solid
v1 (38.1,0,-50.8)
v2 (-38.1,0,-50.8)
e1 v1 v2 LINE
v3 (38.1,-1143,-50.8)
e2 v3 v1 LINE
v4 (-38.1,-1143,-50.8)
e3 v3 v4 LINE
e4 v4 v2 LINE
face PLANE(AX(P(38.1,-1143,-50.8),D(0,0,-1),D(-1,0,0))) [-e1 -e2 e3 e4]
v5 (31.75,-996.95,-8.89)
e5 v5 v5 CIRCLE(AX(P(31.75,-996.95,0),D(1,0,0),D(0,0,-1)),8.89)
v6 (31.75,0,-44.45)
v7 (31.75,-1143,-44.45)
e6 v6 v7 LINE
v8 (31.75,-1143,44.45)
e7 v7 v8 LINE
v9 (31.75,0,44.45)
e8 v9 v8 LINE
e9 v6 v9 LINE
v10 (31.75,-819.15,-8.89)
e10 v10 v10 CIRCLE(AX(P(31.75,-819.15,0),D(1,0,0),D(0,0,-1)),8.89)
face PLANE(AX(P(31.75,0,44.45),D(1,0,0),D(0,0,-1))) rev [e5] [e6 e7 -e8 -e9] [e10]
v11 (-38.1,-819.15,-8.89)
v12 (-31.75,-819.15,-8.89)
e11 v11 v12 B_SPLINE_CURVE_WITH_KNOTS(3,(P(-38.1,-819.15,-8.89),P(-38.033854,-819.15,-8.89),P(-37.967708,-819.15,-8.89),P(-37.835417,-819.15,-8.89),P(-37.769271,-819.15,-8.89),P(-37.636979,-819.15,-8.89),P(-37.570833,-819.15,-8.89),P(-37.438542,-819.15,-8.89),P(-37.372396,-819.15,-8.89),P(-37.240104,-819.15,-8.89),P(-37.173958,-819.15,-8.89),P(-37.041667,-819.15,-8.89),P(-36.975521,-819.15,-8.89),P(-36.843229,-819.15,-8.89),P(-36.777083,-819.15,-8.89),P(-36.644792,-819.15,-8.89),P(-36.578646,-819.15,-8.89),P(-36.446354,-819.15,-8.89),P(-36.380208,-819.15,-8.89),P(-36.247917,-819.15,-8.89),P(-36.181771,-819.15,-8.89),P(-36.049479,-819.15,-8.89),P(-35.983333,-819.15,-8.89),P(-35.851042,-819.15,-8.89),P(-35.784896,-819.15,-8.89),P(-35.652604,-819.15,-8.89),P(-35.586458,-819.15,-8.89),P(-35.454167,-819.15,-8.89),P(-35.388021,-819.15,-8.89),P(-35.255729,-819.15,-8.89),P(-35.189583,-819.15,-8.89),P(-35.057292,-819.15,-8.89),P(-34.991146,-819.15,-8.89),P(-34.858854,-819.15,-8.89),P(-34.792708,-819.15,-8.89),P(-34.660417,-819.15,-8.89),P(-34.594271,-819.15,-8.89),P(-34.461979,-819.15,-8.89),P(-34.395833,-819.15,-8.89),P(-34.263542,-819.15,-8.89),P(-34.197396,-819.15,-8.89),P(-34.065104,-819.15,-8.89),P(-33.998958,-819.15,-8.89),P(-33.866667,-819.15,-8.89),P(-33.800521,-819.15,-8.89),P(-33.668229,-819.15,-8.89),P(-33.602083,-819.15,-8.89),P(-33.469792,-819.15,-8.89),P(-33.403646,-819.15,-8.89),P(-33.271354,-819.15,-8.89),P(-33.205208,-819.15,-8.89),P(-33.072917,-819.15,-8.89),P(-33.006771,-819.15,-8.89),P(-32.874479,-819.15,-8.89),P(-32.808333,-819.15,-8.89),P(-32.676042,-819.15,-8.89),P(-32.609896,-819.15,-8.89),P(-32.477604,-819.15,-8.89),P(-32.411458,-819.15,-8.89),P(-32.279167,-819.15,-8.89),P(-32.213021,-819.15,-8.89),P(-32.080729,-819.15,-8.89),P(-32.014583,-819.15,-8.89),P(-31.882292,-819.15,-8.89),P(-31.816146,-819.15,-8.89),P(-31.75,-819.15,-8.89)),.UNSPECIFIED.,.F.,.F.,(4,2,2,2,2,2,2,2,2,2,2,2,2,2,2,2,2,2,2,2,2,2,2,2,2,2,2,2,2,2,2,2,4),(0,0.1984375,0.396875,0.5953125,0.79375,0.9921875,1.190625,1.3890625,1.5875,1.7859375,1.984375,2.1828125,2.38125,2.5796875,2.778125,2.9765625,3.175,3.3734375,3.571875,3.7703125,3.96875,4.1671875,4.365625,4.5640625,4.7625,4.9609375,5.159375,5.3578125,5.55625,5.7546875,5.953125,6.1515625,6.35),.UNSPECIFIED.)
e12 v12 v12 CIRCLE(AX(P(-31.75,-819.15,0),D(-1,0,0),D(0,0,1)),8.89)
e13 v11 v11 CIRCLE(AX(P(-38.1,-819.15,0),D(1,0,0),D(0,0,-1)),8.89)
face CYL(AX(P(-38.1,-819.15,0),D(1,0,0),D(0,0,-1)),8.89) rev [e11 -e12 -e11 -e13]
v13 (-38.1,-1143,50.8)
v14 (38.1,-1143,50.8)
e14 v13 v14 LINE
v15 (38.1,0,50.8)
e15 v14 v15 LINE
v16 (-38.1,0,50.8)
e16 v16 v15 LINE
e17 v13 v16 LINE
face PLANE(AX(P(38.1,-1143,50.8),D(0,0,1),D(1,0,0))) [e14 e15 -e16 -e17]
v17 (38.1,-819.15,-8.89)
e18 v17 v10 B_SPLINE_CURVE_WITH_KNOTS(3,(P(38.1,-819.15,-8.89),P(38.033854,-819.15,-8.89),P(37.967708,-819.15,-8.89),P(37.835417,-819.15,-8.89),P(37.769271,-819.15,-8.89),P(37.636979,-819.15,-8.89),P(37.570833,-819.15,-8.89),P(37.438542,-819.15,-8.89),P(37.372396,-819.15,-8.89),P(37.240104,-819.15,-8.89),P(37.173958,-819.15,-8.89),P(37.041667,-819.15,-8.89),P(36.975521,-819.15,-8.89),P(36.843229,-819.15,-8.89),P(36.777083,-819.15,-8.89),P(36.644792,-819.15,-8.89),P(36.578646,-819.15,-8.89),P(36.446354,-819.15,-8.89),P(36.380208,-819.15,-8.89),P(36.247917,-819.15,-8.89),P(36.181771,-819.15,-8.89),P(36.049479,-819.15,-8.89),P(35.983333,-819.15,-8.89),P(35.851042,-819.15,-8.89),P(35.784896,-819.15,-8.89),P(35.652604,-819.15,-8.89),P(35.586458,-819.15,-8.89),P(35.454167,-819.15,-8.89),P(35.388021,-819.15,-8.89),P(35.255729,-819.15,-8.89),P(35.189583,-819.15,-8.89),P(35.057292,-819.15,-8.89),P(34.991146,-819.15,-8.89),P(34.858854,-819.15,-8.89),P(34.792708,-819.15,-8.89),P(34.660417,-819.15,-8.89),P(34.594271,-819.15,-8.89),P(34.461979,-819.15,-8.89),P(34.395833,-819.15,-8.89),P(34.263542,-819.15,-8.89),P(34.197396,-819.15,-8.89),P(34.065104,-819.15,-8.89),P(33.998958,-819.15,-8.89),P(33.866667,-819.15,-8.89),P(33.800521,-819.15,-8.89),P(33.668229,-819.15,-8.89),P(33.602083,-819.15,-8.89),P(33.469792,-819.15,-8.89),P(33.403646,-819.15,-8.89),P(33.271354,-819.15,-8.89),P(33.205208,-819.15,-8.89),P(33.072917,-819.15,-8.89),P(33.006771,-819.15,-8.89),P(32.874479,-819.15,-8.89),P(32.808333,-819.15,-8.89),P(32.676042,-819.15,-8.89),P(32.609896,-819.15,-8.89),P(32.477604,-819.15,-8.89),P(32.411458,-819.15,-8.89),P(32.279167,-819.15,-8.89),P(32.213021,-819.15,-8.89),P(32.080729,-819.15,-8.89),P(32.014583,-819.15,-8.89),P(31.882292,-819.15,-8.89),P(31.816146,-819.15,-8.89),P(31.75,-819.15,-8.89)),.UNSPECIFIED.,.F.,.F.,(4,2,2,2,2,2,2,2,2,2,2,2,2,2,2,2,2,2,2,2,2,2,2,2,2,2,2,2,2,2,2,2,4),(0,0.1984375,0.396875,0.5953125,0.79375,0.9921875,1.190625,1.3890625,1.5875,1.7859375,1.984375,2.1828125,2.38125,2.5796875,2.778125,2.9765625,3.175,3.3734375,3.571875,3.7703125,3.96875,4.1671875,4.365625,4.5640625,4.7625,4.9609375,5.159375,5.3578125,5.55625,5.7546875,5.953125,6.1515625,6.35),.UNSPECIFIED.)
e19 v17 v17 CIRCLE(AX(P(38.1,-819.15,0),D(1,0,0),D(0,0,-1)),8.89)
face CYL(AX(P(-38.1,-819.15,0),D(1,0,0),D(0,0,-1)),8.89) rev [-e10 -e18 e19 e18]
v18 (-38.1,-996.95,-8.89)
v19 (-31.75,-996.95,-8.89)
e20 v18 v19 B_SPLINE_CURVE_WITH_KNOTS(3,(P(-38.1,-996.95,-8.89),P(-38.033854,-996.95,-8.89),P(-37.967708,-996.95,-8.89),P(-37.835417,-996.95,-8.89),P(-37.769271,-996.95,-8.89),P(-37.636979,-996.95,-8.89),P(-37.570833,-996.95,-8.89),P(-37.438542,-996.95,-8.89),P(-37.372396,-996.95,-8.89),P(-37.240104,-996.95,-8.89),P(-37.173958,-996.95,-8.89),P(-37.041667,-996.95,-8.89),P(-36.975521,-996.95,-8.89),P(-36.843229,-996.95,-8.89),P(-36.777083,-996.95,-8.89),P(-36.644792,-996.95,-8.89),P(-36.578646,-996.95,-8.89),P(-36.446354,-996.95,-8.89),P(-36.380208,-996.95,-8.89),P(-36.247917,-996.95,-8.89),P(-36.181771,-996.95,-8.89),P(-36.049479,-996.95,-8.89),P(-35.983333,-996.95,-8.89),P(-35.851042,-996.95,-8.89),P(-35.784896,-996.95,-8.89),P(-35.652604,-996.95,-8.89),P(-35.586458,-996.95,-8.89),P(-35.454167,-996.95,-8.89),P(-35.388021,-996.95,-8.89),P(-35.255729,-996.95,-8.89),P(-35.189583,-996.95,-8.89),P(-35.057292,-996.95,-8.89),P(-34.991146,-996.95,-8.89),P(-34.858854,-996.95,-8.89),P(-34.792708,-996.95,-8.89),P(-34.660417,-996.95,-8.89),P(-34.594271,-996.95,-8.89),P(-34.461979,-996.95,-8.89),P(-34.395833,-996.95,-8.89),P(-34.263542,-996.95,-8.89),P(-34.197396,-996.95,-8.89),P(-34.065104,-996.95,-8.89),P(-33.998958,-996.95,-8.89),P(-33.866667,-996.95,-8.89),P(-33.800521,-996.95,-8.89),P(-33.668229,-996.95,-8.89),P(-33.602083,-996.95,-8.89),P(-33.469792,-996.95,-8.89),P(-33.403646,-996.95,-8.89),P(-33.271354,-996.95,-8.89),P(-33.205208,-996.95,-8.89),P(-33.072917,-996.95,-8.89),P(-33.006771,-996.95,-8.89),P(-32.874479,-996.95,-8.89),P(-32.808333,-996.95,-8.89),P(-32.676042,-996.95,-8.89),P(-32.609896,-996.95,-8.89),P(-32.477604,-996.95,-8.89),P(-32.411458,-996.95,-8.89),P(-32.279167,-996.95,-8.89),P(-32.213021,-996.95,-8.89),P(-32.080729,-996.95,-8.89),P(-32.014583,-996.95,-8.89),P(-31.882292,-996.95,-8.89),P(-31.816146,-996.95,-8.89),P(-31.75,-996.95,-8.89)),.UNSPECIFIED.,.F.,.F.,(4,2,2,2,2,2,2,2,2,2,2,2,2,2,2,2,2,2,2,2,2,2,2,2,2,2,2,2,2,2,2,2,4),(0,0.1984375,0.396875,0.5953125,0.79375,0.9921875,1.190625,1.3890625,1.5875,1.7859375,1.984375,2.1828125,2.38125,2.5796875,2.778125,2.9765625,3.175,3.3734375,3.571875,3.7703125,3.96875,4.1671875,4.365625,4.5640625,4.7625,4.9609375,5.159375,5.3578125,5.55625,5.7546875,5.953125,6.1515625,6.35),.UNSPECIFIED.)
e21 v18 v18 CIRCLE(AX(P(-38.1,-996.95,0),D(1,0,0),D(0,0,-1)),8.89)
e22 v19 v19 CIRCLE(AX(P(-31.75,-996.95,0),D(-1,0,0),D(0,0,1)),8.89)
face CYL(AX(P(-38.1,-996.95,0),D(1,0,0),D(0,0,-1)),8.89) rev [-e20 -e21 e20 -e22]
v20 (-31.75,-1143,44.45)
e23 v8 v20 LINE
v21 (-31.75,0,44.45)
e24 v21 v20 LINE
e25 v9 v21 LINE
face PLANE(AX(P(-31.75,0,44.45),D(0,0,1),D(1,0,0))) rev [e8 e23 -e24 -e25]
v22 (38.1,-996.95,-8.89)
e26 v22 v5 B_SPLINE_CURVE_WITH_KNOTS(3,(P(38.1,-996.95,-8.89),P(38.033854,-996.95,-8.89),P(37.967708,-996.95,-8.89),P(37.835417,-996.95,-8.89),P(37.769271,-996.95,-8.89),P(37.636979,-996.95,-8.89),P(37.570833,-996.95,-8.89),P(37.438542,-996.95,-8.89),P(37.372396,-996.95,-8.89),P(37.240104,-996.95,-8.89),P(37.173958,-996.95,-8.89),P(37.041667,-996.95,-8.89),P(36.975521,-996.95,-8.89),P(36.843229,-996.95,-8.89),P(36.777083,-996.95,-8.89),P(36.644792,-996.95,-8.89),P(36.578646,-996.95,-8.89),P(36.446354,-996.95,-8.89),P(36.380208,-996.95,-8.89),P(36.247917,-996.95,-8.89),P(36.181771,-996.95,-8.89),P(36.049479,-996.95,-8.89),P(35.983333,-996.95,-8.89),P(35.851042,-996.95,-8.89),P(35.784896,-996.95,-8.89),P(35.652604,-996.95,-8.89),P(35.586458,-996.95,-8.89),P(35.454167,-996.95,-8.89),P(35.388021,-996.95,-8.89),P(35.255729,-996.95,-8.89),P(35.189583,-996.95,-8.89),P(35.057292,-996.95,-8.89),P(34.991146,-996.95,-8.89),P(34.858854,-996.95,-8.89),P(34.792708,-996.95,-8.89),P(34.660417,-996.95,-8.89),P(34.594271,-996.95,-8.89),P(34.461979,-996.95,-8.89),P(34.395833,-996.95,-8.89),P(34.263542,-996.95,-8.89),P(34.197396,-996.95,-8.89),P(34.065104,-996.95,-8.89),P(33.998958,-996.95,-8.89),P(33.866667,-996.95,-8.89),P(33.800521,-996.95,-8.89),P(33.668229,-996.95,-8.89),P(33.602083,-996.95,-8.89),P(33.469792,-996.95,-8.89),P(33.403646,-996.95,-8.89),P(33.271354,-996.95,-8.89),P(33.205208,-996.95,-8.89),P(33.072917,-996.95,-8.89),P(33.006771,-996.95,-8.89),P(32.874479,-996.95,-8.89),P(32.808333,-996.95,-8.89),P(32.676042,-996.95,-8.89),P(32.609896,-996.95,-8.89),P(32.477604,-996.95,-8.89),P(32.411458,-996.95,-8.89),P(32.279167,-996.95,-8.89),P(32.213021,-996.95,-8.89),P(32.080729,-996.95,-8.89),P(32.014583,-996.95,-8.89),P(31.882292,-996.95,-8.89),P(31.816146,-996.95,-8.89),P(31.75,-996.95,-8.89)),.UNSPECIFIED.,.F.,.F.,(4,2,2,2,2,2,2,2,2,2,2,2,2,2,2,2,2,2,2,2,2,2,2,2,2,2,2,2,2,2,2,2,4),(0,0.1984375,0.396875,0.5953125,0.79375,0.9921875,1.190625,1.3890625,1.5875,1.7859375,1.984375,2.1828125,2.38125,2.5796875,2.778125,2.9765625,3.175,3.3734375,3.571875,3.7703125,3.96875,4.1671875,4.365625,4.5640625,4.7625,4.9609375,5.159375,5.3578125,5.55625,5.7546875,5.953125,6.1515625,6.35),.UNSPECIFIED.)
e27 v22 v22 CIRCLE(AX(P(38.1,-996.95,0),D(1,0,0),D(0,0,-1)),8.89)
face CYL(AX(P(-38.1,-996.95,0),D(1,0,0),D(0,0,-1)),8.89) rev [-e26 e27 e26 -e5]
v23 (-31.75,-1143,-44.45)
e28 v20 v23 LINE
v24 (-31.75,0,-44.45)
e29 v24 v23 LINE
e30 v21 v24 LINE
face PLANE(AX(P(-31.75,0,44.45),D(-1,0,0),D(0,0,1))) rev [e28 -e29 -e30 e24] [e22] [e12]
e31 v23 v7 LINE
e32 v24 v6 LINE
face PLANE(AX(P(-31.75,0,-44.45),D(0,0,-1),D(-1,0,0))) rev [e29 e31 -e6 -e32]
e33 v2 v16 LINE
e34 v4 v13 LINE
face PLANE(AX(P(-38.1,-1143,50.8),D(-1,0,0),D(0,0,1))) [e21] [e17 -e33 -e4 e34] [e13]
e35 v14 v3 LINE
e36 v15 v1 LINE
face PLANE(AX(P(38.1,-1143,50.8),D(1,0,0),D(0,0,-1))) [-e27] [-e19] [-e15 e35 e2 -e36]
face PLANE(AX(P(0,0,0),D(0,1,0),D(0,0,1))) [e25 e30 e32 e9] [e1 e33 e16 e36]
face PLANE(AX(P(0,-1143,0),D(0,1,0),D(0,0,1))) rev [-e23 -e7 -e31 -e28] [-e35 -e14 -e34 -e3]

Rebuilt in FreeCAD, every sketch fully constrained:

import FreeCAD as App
import Part
import Sketcher

V = App.Vector
Q = App.Units.Quantity

doc = App.newDocument("Part")
params = doc.addObject("Spreadsheet::Sheet", "Params")
for row, (alias, value) in enumerate([
    ("sketch1_width", "3 in"),
    ("sketch1_height", "4 in"),
    ("pad1_length", "45 in"),
    ("sketch2_width", "2.5 in"),
    ("sketch2_height", "3.5 in"),
    ("sketch3_diameter", "0.7 in"),
], start=1):
    params.set(f"A{row}", alias)
    params.set(f"B{row}", "=" + value)
    params.setAlias(f"B{row}", alias)

body = doc.addObject("PartDesign::Body", "Body")

sketch1 = body.newObject("Sketcher::SketchObject", "Sketch")
sketch1.AttachmentSupport = (doc.getObject("XZ_Plane"), [""])
sketch1.MapMode = "FlatFace"
sketch1.addGeometry(Part.LineSegment(V(-38, -51, 0), V(-38, 51, 0)), False)
sketch1.addGeometry(Part.LineSegment(V(-38, 51, 0), V(38, 51, 0)), False)
sketch1.addGeometry(Part.LineSegment(V(38, 51, 0), V(38, -51, 0)), False)
sketch1.addGeometry(Part.LineSegment(V(38, -51, 0), V(-38, -51, 0)), False)
sketch1.addConstraint(Sketcher.Constraint("Coincident", 0, 2, 1, 1))
sketch1.addConstraint(Sketcher.Constraint("Coincident", 1, 2, 2, 1))
sketch1.addConstraint(Sketcher.Constraint("Coincident", 2, 2, 3, 1))
sketch1.addConstraint(Sketcher.Constraint("Coincident", 3, 2, 0, 1))
sketch1.addConstraint(Sketcher.Constraint("Vertical", 0))
sketch1.addConstraint(Sketcher.Constraint("Horizontal", 1))
sketch1.addConstraint(Sketcher.Constraint("Vertical", 2))
sketch1.addConstraint(Sketcher.Constraint("Horizontal", 3))
sketch1.addConstraint(Sketcher.Constraint("Symmetric", 0, 2, 2, 2, -1, 1))
sketch1.addConstraint(Sketcher.Constraint("DistanceX", 1, 1, 1, 2, Q("3 in")))
sketch1.addConstraint(Sketcher.Constraint("DistanceY", 0, 1, 0, 2, Q("4 in")))
sketch1.setExpression("Constraints[9]", "Params.sketch1_width")
sketch1.setExpression("Constraints[10]", "Params.sketch1_height")
pad1 = body.newObject("PartDesign::Pad", "Pad")
pad1.Profile = sketch1
pad1.setExpression("Length", "Params.pad1_length")

sketch2 = body.newObject("Sketcher::SketchObject", "Sketch001")
sketch2.AttachmentSupport = (doc.getObject("XZ_Plane"), [""])
sketch2.MapMode = "FlatFace"
sketch2.AttachmentOffset = App.Placement(V(0, 0, 45 * 25.4), App.Rotation())
sketch2.addGeometry(Part.LineSegment(V(-32, 44, 0), V(-32, -44, 0)), False)
sketch2.addGeometry(Part.LineSegment(V(-32, -44, 0), V(32, -44, 0)), False)
sketch2.addGeometry(Part.LineSegment(V(32, -44, 0), V(32, 44, 0)), False)
sketch2.addGeometry(Part.LineSegment(V(32, 44, 0), V(-32, 44, 0)), False)
sketch2.addConstraint(Sketcher.Constraint("Coincident", 0, 2, 1, 1))
sketch2.addConstraint(Sketcher.Constraint("Coincident", 1, 2, 2, 1))
sketch2.addConstraint(Sketcher.Constraint("Coincident", 2, 2, 3, 1))
sketch2.addConstraint(Sketcher.Constraint("Coincident", 3, 2, 0, 1))
sketch2.addConstraint(Sketcher.Constraint("Vertical", 0))
sketch2.addConstraint(Sketcher.Constraint("Horizontal", 1))
sketch2.addConstraint(Sketcher.Constraint("Vertical", 2))
sketch2.addConstraint(Sketcher.Constraint("Horizontal", 3))
sketch2.addConstraint(Sketcher.Constraint("Symmetric", 0, 2, 2, 2, -1, 1))
sketch2.addConstraint(Sketcher.Constraint("DistanceX", 1, 1, 1, 2, Q("2.5 in")))
sketch2.addConstraint(Sketcher.Constraint("DistanceY", 0, 2, 0, 1, Q("3.5 in")))
sketch2.setExpression("Constraints[9]", "Params.sketch2_width")
sketch2.setExpression("Constraints[10]", "Params.sketch2_height")
pocket1 = body.newObject("PartDesign::Pocket", "Pocket")
pocket1.Profile = sketch2
pocket1.Type = "ThroughAll"

sketch3 = body.newObject("Sketcher::SketchObject", "Sketch002")
sketch3.AttachmentSupport = (doc.getObject("YZ_Plane"), [""])
sketch3.MapMode = "FlatFace"
sketch3.AttachmentOffset = App.Placement(V(0, 0, 1.5 * 25.4), App.Rotation())
sketch3.addGeometry(Part.Circle(V(-997, 0, 0), V(0, 0, 1), 9), False)
sketch3.addGeometry(Part.Circle(V(-819, 0, 0), V(0, 0, 1), 9), False)
sketch3.addConstraint(Sketcher.Constraint("Equal", 0, 1))
sketch3.addConstraint(Sketcher.Constraint("PointOnObject", 0, 3, -1))
sketch3.addConstraint(Sketcher.Constraint("PointOnObject", 1, 3, -1))
sketch3.addConstraint(Sketcher.Constraint("Diameter", 0, Q("0.7 in")))
sketch3.addConstraint(Sketcher.Constraint("DistanceX", 0, 3, 1, 3, Q("7 in")))
sketch3.addConstraint(Sketcher.Constraint("DistanceX", 0, 3, -1, 1, Q("39.25 in")))
sketch3.setExpression("Constraints[3]", "Params.sketch3_diameter")
pocket2 = body.newObject("PartDesign::Pocket", "Pocket001")
pocket2.Profile = sketch3
pocket2.Type = "ThroughAll"

doc.recompute()
